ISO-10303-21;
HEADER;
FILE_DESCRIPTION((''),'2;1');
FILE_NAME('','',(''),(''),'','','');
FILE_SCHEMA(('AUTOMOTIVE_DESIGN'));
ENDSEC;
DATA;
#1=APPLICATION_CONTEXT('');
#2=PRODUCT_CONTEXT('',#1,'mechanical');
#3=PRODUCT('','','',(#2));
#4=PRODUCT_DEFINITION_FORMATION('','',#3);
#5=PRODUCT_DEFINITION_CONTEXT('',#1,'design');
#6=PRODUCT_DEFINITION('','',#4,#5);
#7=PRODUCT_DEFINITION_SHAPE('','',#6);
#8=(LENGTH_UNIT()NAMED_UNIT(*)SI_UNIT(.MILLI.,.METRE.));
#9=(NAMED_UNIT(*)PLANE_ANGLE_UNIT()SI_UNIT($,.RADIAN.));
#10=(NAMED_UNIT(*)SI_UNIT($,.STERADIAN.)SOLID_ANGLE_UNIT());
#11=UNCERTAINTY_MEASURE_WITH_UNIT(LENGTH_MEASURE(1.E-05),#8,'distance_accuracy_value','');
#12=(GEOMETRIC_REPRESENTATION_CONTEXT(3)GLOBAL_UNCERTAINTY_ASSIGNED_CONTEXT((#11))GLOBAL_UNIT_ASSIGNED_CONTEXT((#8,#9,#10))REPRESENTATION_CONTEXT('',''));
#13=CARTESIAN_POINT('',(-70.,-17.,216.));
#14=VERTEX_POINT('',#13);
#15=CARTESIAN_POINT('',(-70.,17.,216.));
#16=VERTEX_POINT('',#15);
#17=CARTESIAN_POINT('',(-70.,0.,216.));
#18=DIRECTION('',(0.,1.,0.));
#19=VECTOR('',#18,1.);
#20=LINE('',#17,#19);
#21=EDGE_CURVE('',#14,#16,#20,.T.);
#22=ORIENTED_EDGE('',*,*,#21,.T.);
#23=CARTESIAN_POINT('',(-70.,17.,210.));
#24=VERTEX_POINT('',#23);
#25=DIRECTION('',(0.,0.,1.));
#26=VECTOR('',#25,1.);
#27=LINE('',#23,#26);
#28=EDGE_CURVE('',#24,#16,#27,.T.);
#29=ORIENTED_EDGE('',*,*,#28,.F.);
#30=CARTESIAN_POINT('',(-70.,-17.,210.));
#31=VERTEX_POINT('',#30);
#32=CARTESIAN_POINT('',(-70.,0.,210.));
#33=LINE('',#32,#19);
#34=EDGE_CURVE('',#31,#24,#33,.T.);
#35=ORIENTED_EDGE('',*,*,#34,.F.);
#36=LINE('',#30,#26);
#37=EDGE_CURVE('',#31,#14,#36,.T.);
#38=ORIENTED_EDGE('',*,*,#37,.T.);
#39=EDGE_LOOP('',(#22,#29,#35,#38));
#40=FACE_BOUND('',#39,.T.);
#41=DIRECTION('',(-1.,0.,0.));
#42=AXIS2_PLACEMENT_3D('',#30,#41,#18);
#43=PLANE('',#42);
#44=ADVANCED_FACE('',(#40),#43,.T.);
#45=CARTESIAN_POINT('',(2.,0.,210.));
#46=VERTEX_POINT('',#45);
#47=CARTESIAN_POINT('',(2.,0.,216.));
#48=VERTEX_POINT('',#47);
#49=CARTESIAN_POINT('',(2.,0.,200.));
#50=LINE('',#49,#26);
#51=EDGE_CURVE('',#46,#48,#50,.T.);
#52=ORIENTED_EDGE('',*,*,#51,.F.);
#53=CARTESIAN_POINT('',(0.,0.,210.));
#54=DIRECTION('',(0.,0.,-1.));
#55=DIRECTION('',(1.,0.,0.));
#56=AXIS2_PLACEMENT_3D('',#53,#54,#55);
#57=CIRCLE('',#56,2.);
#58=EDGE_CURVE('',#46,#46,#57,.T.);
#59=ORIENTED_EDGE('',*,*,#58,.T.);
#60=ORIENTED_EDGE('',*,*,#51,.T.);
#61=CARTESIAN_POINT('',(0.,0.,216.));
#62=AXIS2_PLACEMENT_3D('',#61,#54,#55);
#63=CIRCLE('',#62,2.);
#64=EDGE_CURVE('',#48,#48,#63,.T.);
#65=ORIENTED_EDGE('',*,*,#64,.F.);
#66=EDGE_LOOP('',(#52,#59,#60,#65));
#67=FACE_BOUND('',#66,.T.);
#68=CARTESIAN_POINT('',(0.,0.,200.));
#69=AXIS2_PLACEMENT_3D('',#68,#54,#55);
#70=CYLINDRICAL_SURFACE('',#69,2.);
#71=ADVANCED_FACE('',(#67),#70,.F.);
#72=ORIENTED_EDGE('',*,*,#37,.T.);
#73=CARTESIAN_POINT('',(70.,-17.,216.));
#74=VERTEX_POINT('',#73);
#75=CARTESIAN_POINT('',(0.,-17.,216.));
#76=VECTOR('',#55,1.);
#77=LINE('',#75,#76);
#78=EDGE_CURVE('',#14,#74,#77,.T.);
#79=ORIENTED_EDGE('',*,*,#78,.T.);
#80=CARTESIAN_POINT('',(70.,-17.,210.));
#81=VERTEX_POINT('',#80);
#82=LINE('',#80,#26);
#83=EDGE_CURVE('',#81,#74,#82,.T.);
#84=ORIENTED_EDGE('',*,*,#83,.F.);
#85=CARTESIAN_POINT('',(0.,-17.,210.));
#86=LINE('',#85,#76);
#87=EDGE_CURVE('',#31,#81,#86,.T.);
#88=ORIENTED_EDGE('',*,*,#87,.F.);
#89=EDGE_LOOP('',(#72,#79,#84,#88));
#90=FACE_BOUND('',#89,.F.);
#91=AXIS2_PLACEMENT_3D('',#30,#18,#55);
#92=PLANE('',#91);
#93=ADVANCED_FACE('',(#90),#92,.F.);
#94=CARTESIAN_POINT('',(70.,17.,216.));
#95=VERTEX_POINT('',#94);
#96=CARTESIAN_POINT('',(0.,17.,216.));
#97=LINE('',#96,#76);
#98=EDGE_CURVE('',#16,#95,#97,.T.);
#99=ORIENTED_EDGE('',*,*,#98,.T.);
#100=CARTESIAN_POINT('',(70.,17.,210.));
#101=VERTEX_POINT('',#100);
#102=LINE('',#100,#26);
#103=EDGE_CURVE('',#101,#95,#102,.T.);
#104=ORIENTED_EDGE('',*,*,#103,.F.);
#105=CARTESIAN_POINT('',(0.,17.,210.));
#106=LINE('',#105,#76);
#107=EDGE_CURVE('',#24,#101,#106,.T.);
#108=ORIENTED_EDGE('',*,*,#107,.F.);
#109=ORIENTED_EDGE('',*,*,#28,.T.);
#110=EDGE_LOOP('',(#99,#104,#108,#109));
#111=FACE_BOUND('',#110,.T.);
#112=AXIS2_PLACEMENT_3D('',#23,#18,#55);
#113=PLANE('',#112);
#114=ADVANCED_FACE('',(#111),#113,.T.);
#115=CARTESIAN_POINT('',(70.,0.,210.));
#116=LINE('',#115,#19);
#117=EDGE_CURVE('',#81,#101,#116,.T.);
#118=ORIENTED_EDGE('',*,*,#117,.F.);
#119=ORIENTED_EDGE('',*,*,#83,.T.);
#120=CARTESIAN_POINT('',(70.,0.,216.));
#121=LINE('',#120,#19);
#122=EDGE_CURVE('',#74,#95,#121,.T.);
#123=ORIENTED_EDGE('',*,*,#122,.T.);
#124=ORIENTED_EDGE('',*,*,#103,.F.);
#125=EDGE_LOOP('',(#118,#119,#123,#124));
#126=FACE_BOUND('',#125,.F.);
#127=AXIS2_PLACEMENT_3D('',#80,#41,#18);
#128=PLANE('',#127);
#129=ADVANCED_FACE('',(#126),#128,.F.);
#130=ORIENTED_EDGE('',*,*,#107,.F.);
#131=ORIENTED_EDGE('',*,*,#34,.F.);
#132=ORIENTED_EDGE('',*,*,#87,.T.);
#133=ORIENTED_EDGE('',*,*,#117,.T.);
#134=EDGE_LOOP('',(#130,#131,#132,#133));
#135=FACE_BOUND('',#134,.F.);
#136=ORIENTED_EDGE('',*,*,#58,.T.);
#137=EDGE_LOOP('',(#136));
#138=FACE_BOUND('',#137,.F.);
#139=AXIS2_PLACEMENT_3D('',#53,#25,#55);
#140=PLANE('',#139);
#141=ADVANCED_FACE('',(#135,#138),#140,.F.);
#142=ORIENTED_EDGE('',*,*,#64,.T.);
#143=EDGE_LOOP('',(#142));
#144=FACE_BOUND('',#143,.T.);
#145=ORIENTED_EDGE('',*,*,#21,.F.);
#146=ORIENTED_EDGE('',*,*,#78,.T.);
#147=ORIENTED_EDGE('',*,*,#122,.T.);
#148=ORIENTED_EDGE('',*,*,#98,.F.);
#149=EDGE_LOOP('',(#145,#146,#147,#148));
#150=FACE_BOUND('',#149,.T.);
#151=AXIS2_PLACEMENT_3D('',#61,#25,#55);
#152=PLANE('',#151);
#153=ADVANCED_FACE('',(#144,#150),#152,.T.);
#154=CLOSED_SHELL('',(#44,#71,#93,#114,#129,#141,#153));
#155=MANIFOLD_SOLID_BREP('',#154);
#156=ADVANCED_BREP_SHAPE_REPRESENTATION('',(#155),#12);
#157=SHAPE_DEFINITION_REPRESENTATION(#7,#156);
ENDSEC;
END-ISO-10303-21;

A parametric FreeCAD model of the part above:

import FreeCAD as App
import Part
import Sketcher
Q = App.Units.Quantity


def add_polygon(sketch, points):
    """Adds a closed chain of lines whose ends are joined by coincident constraints."""
    first, n = sketch.GeometryCount, len(points)
    for a, b in zip(points, points[1:] + points[:1]):
        sketch.addGeometry(Part.LineSegment(App.Vector(*a, 0), App.Vector(*b, 0)), False)
    for i in range(n):
        sketch.addConstraint(Sketcher.Constraint("Coincident", first + i, 2, first + (i + 1) % n, 1))

doc = App.newDocument("Part")
params = doc.addObject("Spreadsheet::Sheet", "Params")
for row, (alias, value) in enumerate([
    ("sketch1_diameter", "4 mm"),
    ("pad1_length", "30 mm"),
    ("sketch2_width", "140 mm"),
    ("sketch2_height", "34 mm"),
    ("pad2_length", "6 mm"),
], start=1):
    params.set(f"A{row}", alias)
    params.set(f"B{row}", "=" + value)
    params.setAlias(f"B{row}", alias)

body = doc.addObject("PartDesign::Body", "Body")

sketch1 = body.newObject("Sketcher::SketchObject", "Sketch")
sketch1.AttachmentSupport = (doc.getObject("XY_Plane"), [""])
sketch1.MapMode = "FlatFace"
sketch1.AttachmentOffset = App.Placement(App.Vector(0, 0, 200), App.Rotation())
sketch1.addGeometry(Part.Circle(App.Vector(0, 0, 0), App.Vector(0, 0, 1), 2), False)
sketch1.addConstraint([
    Sketcher.Constraint("Coincident", 0, 3, -1, 1),
    Sketcher.Constraint("Diameter", 0, Q("4 mm")),
])
sketch1.setExpression("Constraints[1]", "Params.sketch1_diameter")
pad1 = body.newObject("PartDesign::Pad", "Pad")
pad1.Profile = sketch1
pad1.setExpression("Length", "Params.pad1_length")
body2 = doc.addObject("PartDesign::Body", "Body001")

sketch2 = body2.newObject("Sketcher::SketchObject", "Sketch001")
sketch2.AttachmentSupport = (doc.getObject("XY_Plane001"), [""])
sketch2.MapMode = "FlatFace"
sketch2.AttachmentOffset = App.Placement(App.Vector(0, 0, 210), App.Rotation())
add_polygon(sketch2, [(-70, 17), (-70, -17), (70, -17), (70, 17)])
sketch2.addConstraint([
    Sketcher.Constraint("Vertical", 0),
    Sketcher.Constraint("Horizontal", 1),
    Sketcher.Constraint("Vertical", 2),
    Sketcher.Constraint("Horizontal", 3),
    Sketcher.Constraint("Symmetric", 0, 2, 2, 2, -1, 1),
    Sketcher.Constraint("DistanceX", 1, 1, 1, 2, Q("140 mm")),
    Sketcher.Constraint("DistanceY", 0, 2, 0, 1, Q("34 mm")),
])
sketch2.setExpression("Constraints[9]", "Params.sketch2_width")
sketch2.setExpression("Constraints[10]", "Params.sketch2_height")
pad2 = body2.newObject("PartDesign::Pad", "Pad001")
pad2.Profile = sketch2
pad2.setExpression("Length", "Params.pad2_length")
doc.recompute()

boolean = body2.newObject("PartDesign::Boolean", "Boolean")
boolean.Type = "Cut"
boolean.addObjects([body])

doc.recompute()
